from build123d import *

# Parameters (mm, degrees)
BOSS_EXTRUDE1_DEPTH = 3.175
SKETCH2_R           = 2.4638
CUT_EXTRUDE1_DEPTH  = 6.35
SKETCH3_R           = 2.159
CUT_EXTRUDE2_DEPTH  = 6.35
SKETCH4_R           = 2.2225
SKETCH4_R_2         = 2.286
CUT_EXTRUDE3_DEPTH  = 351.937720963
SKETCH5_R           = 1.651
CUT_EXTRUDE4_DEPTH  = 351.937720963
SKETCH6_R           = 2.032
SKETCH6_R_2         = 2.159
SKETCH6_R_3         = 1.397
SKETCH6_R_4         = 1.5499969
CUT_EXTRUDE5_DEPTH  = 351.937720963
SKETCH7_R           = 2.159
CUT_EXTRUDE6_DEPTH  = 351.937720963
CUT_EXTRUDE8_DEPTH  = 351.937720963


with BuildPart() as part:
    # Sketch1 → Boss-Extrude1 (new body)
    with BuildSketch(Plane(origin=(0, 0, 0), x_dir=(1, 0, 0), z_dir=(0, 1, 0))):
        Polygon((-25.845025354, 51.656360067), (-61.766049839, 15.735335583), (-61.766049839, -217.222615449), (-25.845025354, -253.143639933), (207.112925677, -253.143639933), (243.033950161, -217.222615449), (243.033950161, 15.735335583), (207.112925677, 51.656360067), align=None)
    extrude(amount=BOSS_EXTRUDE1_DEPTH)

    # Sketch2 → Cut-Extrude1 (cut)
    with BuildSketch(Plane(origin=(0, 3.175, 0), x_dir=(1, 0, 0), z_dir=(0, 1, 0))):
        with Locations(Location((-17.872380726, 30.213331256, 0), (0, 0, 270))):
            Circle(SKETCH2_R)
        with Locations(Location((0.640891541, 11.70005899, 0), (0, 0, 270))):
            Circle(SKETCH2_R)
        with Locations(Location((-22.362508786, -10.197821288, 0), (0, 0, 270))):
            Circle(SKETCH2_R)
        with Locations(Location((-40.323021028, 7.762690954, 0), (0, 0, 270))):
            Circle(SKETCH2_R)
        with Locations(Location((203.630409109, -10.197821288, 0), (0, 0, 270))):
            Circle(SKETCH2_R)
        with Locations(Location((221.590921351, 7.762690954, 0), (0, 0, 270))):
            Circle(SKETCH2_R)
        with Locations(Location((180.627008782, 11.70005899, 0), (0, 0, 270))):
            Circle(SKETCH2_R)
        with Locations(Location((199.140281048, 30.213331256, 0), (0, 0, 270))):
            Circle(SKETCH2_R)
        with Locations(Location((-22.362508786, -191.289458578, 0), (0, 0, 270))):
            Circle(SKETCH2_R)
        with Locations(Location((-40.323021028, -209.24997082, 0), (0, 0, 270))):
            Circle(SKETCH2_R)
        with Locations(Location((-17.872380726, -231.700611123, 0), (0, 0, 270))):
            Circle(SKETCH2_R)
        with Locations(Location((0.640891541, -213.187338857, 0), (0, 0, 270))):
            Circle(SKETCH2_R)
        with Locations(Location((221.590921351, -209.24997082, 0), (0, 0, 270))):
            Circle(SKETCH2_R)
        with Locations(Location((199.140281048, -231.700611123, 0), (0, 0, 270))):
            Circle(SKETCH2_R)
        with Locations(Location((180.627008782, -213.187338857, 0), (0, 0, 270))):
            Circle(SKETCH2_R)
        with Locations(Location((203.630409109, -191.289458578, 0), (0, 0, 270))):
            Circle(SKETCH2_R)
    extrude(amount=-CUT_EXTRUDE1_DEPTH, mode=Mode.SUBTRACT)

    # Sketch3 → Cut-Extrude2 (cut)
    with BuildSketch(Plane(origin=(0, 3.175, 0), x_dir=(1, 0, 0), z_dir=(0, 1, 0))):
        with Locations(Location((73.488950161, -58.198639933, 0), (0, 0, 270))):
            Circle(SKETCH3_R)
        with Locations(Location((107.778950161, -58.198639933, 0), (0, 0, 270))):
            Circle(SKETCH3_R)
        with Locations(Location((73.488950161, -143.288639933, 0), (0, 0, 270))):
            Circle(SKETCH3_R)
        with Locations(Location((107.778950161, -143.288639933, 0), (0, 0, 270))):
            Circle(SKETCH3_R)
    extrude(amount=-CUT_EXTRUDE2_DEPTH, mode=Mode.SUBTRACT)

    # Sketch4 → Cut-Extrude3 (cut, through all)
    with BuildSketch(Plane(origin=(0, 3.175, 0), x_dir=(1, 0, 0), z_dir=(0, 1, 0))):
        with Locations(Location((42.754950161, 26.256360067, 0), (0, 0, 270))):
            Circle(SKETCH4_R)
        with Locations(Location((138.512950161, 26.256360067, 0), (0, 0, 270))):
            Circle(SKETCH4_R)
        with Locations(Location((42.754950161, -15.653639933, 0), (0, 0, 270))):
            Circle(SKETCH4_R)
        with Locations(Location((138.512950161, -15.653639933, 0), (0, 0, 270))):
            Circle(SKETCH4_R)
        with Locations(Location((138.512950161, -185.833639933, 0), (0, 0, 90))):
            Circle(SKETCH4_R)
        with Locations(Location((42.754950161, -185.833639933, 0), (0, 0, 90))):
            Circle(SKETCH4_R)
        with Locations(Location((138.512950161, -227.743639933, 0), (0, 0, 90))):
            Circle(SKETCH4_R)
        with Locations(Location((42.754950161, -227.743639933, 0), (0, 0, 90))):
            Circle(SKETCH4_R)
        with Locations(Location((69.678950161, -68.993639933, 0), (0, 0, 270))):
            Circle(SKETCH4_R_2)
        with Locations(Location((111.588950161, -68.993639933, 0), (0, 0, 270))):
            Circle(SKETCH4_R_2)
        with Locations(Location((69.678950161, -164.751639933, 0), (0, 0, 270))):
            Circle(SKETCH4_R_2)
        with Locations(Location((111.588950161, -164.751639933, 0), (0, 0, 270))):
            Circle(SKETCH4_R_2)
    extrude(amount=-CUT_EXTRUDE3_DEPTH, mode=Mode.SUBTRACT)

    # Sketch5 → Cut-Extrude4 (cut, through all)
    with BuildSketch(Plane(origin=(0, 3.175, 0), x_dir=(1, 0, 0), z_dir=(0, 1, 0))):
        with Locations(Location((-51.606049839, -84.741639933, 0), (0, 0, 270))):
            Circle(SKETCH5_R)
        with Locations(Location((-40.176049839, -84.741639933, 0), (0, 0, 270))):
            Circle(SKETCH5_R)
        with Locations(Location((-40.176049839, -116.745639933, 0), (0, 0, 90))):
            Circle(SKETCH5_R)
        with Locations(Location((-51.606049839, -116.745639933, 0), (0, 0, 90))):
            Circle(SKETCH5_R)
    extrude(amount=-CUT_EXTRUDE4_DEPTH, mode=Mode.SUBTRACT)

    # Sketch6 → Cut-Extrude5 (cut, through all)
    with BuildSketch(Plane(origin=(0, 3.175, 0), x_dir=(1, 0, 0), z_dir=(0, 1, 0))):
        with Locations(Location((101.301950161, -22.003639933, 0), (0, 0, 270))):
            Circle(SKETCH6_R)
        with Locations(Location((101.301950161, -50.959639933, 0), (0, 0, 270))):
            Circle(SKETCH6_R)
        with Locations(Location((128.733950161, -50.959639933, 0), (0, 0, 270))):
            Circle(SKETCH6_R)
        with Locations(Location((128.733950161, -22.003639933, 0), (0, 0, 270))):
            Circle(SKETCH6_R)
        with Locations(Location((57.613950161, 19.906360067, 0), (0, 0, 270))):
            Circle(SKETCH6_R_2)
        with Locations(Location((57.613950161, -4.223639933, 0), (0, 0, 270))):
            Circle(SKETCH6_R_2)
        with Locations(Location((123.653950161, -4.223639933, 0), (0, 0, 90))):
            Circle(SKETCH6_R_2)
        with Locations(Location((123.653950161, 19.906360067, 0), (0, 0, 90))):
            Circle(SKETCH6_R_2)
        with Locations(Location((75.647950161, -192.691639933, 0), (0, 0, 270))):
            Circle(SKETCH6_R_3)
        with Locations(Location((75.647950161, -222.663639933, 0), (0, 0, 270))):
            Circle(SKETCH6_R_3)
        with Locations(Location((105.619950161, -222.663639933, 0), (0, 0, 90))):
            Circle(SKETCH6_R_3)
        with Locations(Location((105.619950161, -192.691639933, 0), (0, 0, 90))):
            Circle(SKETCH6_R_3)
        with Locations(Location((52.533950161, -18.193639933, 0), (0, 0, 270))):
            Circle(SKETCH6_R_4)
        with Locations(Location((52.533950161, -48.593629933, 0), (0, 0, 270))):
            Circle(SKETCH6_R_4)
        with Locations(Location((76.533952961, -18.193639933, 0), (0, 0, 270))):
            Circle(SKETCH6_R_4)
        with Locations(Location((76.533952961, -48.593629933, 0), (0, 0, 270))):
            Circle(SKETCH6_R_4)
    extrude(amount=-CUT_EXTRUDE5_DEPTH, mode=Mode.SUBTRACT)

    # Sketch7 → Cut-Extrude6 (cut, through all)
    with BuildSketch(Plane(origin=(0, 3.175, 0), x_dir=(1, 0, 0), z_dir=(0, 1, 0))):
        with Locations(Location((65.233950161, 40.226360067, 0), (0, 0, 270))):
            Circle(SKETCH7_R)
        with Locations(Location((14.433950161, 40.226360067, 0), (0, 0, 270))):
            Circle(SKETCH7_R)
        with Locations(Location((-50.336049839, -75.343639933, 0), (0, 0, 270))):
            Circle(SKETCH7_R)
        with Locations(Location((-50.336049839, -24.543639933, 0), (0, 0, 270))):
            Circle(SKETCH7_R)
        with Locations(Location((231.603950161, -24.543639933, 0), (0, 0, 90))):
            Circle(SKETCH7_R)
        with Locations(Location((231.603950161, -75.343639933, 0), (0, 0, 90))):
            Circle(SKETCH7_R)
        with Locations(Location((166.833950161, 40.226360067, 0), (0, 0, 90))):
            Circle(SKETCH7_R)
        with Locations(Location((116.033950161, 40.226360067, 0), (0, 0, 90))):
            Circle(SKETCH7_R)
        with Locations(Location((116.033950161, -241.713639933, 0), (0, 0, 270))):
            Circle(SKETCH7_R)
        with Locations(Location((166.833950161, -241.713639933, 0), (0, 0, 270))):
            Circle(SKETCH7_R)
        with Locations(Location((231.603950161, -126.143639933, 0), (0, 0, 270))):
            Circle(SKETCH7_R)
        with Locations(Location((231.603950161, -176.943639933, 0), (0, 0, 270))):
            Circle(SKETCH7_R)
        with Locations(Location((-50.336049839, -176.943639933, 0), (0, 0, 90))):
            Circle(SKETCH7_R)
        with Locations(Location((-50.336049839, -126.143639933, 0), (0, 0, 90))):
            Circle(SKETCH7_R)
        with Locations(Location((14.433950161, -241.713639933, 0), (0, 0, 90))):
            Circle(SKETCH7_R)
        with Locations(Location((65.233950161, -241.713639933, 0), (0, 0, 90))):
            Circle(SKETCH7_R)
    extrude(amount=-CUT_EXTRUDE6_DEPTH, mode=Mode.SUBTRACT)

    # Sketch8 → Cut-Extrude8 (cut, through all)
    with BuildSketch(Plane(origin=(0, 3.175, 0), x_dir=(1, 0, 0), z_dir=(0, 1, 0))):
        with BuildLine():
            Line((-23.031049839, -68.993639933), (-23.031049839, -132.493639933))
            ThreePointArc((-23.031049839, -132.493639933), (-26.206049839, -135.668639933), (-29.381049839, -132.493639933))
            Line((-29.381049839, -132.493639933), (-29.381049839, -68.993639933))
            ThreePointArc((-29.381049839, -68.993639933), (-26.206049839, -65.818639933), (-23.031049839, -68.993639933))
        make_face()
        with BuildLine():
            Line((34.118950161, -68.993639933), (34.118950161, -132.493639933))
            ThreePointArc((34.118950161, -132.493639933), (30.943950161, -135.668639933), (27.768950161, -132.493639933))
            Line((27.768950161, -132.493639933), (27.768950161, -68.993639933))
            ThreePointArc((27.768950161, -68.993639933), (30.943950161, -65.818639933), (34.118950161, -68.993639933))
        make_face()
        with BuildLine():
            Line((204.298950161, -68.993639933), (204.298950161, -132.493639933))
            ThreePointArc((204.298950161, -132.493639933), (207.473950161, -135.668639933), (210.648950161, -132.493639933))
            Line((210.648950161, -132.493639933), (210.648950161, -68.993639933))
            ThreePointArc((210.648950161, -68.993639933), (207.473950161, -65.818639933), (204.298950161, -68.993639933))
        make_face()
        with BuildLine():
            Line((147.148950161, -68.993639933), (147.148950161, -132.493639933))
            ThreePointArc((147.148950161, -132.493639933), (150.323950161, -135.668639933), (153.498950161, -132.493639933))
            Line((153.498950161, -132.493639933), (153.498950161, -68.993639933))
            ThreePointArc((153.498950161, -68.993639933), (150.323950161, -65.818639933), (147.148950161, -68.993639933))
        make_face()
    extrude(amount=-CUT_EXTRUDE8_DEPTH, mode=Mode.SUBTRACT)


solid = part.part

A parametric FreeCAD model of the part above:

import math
import FreeCAD as App
import Part
import Sketcher
from FreeCAD import Vector
Q = App.Units.Quantity


def add_polygon(sketch, points):
    """Adds a closed chain of lines whose ends are joined by coincident constraints."""
    first, n = sketch.GeometryCount, len(points)
    for a, b in zip(points, points[1:] + points[:1]):
        sketch.addGeometry(Part.LineSegment(App.Vector(*a, 0), App.Vector(*b, 0)), False)
    for i in range(n):
        sketch.addConstraint(Sketcher.Constraint("Coincident", first + i, 2, first + (i + 1) % n, 1))

doc = App.newDocument("Part")
body = doc.addObject("PartDesign::Body", "Body")

# Sketch on XZ plane
sketch1 = body.newObject("Sketcher::SketchObject", "Sketch")
sketch1.AttachmentSupport = (doc.getObject("XZ_Plane"), [""])
sketch1.MapMode = "FlatFace"
add_polygon(sketch1, [(-25.845025, -51.65636), (-61.76605, -15.735336), (-61.76605, 217.222615), (-25.845025, 253.14364), (207.112926, 253.14364), (243.03395, 217.222615), (243.03395, -15.735336), (207.112926, -51.65636)])  # lines 0-7
sketch1.addConstraint([
    Sketcher.Constraint("Vertical", 1),
    Sketcher.Constraint("Horizontal", 3),
    Sketcher.Constraint("Vertical", 5),
    Sketcher.Constraint("Horizontal", 7),
    Sketcher.Constraint("Perpendicular", 0, 2),
    Sketcher.Constraint("Perpendicular", 2, 4),
    Sketcher.Constraint("Perpendicular", 4, 6),
    Sketcher.Constraint("Horizontal", 1, 2, 4, 2),
    Sketcher.Constraint("Horizontal", 0, 2, 5, 2),
    Sketcher.Constraint("Vertical", 3, 2, 6, 2),
    Sketcher.Constraint("Vertical", 2, 2, 7, 2),
    Sketcher.Constraint("Equal", 7, 1),
    Sketcher.Constraint("Distance", 0, Q("2 in")),
    Sketcher.Constraint("DistanceX", 1, 2, 4, 2, Q("12 in")),
    Sketcher.Constraint("DistanceX", 0, 2, -1, 1, 61.76605),
    Sketcher.Constraint("DistanceY", -1, 1, 2, 2, 253.14364),
])
pad1 = body.newObject("PartDesign::Pad", "Pad")
pad1.Profile = sketch1
pad1.Length = Q("0.125 in")
pad1.Reversed = True

# Sketch on XZ plane
sketch2 = body.newObject("Sketcher::SketchObject", "Sketch001")
sketch2.AttachmentSupport = (doc.getObject("XZ_Plane"), [""])
sketch2.MapMode = "FlatFace"
sketch2.AttachmentOffset = App.Placement(Vector(0, 0, -0.125 * 25.4), App.Rotation())
sketch2.addGeometry([
    Part.Circle(Vector(-17.872381, -30.213331, 0), Vector(0, 0, 1), 2.4638),  # 0
    Part.Circle(Vector(0.640892, -11.700059, 0), Vector(0, 0, 1), 2.4638),  # 1
    Part.Circle(Vector(-22.362509, 10.197821, 0), Vector(0, 0, 1), 2.4638),  # 2
    Part.Circle(Vector(-40.323021, -7.762691, 0), Vector(0, 0, 1), 2.4638),  # 3
    Part.Circle(Vector(203.630409, 10.197821, 0), Vector(0, 0, 1), 2.4638),  # 4
    Part.Circle(Vector(221.590921, -7.762691, 0), Vector(0, 0, 1), 2.4638),  # 5
    Part.Circle(Vector(180.627009, -11.700059, 0), Vector(0, 0, 1), 2.4638),  # 6
    Part.Circle(Vector(199.140281, -30.213331, 0), Vector(0, 0, 1), 2.4638),  # 7
    Part.Circle(Vector(-22.362509, 191.289459, 0), Vector(0, 0, 1), 2.4638),  # 8
    Part.Circle(Vector(-40.323021, 209.249971, 0), Vector(0, 0, 1), 2.4638),  # 9
    Part.Circle(Vector(-17.872381, 231.700611, 0), Vector(0, 0, 1), 2.4638),  # 10
    Part.Circle(Vector(0.640892, 213.187339, 0), Vector(0, 0, 1), 2.4638),  # 11
    Part.Circle(Vector(221.590921, 209.249971, 0), Vector(0, 0, 1), 2.4638),  # 12
    Part.Circle(Vector(199.140281, 231.700611, 0), Vector(0, 0, 1), 2.4638),  # 13
    Part.Circle(Vector(180.627009, 213.187339, 0), Vector(0, 0, 1), 2.4638),  # 14
    Part.Circle(Vector(203.630409, 191.289459, 0), Vector(0, 0, 1), 2.4638),  # 15
], False)
sketch2.addConstraint([
    Sketcher.Constraint("Equal", 0, 1),
    Sketcher.Constraint("Equal", 1, 2),
    Sketcher.Constraint("Equal", 2, 3),
    Sketcher.Constraint("Equal", 3, 4),
    Sketcher.Constraint("Equal", 4, 5),
    Sketcher.Constraint("Equal", 5, 6),
    Sketcher.Constraint("Equal", 6, 7),
    Sketcher.Constraint("Equal", 7, 8),
    Sketcher.Constraint("Equal", 8, 9),
    Sketcher.Constraint("Equal", 9, 10),
    Sketcher.Constraint("Equal", 10, 11),
    Sketcher.Constraint("Equal", 11, 12),
    Sketcher.Constraint("Equal", 12, 13),
    Sketcher.Constraint("Equal", 13, 14),
    Sketcher.Constraint("Equal", 14, 15),
    Sketcher.Constraint("Horizontal", 2, 3, 4, 3),
    Sketcher.Constraint("Horizontal", 3, 3, 5, 3),
    Sketcher.Constraint("Horizontal", 1, 3, 6, 3),
    Sketcher.Constraint("Horizontal", 0, 3, 7, 3),
    Sketcher.Constraint("Horizontal", 9, 3, 12, 3),
    Sketcher.Constraint("Horizontal", 10, 3, 13, 3),
    Sketcher.Constraint("Horizontal", 11, 3, 14, 3),
    Sketcher.Constraint("Horizontal", 8, 3, 15, 3),
    Sketcher.Constraint("Vertical", 2, 3, 8, 3),
    Sketcher.Constraint("Vertical", 3, 3, 9, 3),
    Sketcher.Constraint("Vertical", 0, 3, 10, 3),
    Sketcher.Constraint("Vertical", 1, 3, 11, 3),
    Sketcher.Constraint("Vertical", 5, 3, 12, 3),
    Sketcher.Constraint("Vertical", 7, 3, 13, 3),
    Sketcher.Constraint("Vertical", 6, 3, 14, 3),
    Sketcher.Constraint("Vertical", 4, 3, 15, 3),
    Sketcher.Constraint("Diameter", 0, Q("0.194 in")),
    Sketcher.Constraint("DistanceX", 2, 3, 1, 3, 23.0034),
    Sketcher.Constraint("DistanceX", 6, 3, 4, 3, 23.0034),
    Sketcher.Constraint("DistanceX", 0, 3, -1, 1, 17.872381),
    Sketcher.Constraint("DistanceY", 0, 3, -1, 1, 30.213331),
    Sketcher.Constraint("DistanceX", -1, 1, 1, 3, 0.640892),
    Sketcher.Constraint("DistanceY", 1, 3, -1, 1, 11.700059),
    Sketcher.Constraint("DistanceY", -1, 1, 2, 3, 10.197821),
    Sketcher.Constraint("DistanceX", 3, 3, -1, 1, 40.323021),
    Sketcher.Constraint("DistanceY", 3, 3, -1, 1, 7.762691),
    Sketcher.Constraint("DistanceX", -1, 1, 4, 3, 203.630409),
    Sketcher.Constraint("DistanceX", -1, 1, 5, 3, 221.590921),
    Sketcher.Constraint("DistanceX", -1, 1, 7, 3, 199.140281),
    Sketcher.Constraint("DistanceY", -1, 1, 8, 3, 191.289459),
    Sketcher.Constraint("DistanceY", -1, 1, 9, 3, 209.249971),
    Sketcher.Constraint("DistanceY", -1, 1, 10, 3, 231.700611),
    Sketcher.Constraint("DistanceY", -1, 1, 11, 3, 213.187339),
])
pocket1 = body.newObject("PartDesign::Pocket", "Pocket")
pocket1.Profile = sketch2
pocket1.Length = Q("0.25 in")
pocket1.Reversed = True

# Sketch on XZ plane
sketch3 = body.newObject("Sketcher::SketchObject", "Sketch002")
sketch3.AttachmentSupport = (doc.getObject("XZ_Plane"), [""])
sketch3.MapMode = "FlatFace"
sketch3.AttachmentOffset = App.Placement(Vector(0, 0, -0.125 * 25.4), App.Rotation())
sketch3.addGeometry([
    Part.Circle(Vector(73.48895, 58.19864, 0), Vector(0, 0, 1), 2.159),
    Part.Circle(Vector(107.77895, 58.19864, 0), Vector(0, 0, 1), 2.159),
    Part.Circle(Vector(73.48895, 143.28864, 0), Vector(0, 0, 1), 2.159),
    Part.Circle(Vector(107.77895, 143.28864, 0), Vector(0, 0, 1), 2.159),
], False)
sketch3.addConstraint([
    Sketcher.Constraint("Equal", 0, 1),
    Sketcher.Constraint("Equal", 1, 2),
    Sketcher.Constraint("Equal", 2, 3),
    Sketcher.Constraint("Horizontal", 0, 3, 1, 3),
    Sketcher.Constraint("Horizontal", 2, 3, 3, 3),
    Sketcher.Constraint("Vertical", 0, 3, 2, 3),
    Sketcher.Constraint("Vertical", 1, 3, 3, 3),
    Sketcher.Constraint("Diameter", 0, Q("0.17 in")),
    Sketcher.Constraint("DistanceX", 0, 3, 1, 3, Q("1.35 in")),
    Sketcher.Constraint("DistanceY", 0, 3, 2, 3, Q("3.35 in")),
    Sketcher.Constraint("DistanceX", -1, 1, 0, 3, 73.48895),
    Sketcher.Constraint("DistanceY", -1, 1, 0, 3, 58.19864),
])
pocket2 = body.newObject("PartDesign::Pocket", "Pocket001")
pocket2.Profile = sketch3
pocket2.Length = Q("0.25 in")
pocket2.Reversed = True

# Sketch on XZ plane
sketch4 = body.newObject("Sketcher::SketchObject", "Sketch003")
sketch4.AttachmentSupport = (doc.getObject("XZ_Plane"), [""])
sketch4.MapMode = "FlatFace"
sketch4.AttachmentOffset = App.Placement(Vector(0, 0, -0.125 * 25.4), App.Rotation())
sketch4.addGeometry([
    Part.Circle(Vector(42.75495, -26.25636, 0), Vector(0, 0, 1), 2.2225),  # 0
    Part.Circle(Vector(138.51295, -26.25636, 0), Vector(0, 0, 1), 2.2225),  # 1
    Part.Circle(Vector(42.75495, 15.65364, 0), Vector(0, 0, 1), 2.2225),  # 2
    Part.Circle(Vector(138.51295, 15.65364, 0), Vector(0, 0, 1), 2.2225),  # 3
    Part.Circle(Vector(138.51295, 185.83364, 0), Vector(0, 0, 1), 2.2225),  # 4
    Part.Circle(Vector(42.75495, 185.83364, 0), Vector(0, 0, 1), 2.2225),  # 5
    Part.Circle(Vector(138.51295, 227.74364, 0), Vector(0, 0, 1), 2.2225),  # 6
    Part.Circle(Vector(42.75495, 227.74364, 0), Vector(0, 0, 1), 2.2225),  # 7
    Part.Circle(Vector(69.67895, 68.99364, 0), Vector(0, 0, 1), 2.286),  # 8
    Part.Circle(Vector(111.58895, 68.99364, 0), Vector(0, 0, 1), 2.286),  # 9
    Part.Circle(Vector(69.67895, 164.75164, 0), Vector(0, 0, 1), 2.286),  # 10
    Part.Circle(Vector(111.58895, 164.75164, 0), Vector(0, 0, 1), 2.286),  # 11
], False)
sketch4.addConstraint([
    Sketcher.Constraint("Equal", 0, 1),
    Sketcher.Constraint("Equal", 1, 2),
    Sketcher.Constraint("Equal", 2, 3),
    Sketcher.Constraint("Equal", 3, 4),
    Sketcher.Constraint("Equal", 4, 5),
    Sketcher.Constraint("Equal", 5, 6),
    Sketcher.Constraint("Equal", 6, 7),
    Sketcher.Constraint("Equal", 8, 9),
    Sketcher.Constraint("Equal", 9, 10),
    Sketcher.Constraint("Equal", 10, 11),
    Sketcher.Constraint("Horizontal", 0, 3, 1, 3),
    Sketcher.Constraint("Horizontal", 2, 3, 3, 3),
    Sketcher.Constraint("Horizontal", 4, 3, 5, 3),
    Sketcher.Constraint("Horizontal", 6, 3, 7, 3),
    Sketcher.Constraint("Horizontal", 8, 3, 9, 3),
    Sketcher.Constraint("Horizontal", 10, 3, 11, 3),
    Sketcher.Constraint("Vertical", 0, 3, 2, 3),
    Sketcher.Constraint("Vertical", 1, 3, 3, 3),
    Sketcher.Constraint("Vertical", 3, 3, 4, 3),
    Sketcher.Constraint("Vertical", 2, 3, 5, 3),
    Sketcher.Constraint("Vertical", 4, 3, 6, 3),
    Sketcher.Constraint("Vertical", 5, 3, 7, 3),
    Sketcher.Constraint("Vertical", 8, 3, 10, 3),
    Sketcher.Constraint("Vertical", 9, 3, 11, 3),
    Sketcher.Constraint("Diameter", 8, Q("0.18 in")),
    Sketcher.Constraint("Diameter", 0, Q("0.175 in")),
    Sketcher.Constraint("DistanceY", 1, 3, 6, 3, Q("10 in")),
    Sketcher.Constraint("DistanceY", 3, 3, 4, 3, Q("6.7 in")),
    Sketcher.Constraint("DistanceY", 2, 3, 8, 3, Q("2.1 in")),
    Sketcher.Constraint("DistanceX", 0, 3, 1, 3, Q("3.77 in")),
    Sketcher.Constraint("DistanceY", 0, 3, 2, 3, Q("1.65 in")),
    Sketcher.Constraint("DistanceX", 2, 3, 8, 3, Q("1.06 in")),
    Sketcher.Constraint("DistanceX", 8, 3, 9, 3, Q("1.65 in")),
    Sketcher.Constraint("DistanceY", 10, 3, 5, 3, Q("0.83 in")),
    Sketcher.Constraint("DistanceX", -1, 1, 0, 3, 42.75495),
    Sketcher.Constraint("DistanceY", 0, 3, -1, 1, 26.25636),
])
pocket3 = body.newObject("PartDesign::Pocket", "Pocket002")
pocket3.Profile = sketch4
pocket3.Type = "ThroughAll"
pocket3.Reversed = True

# Sketch on XZ plane
sketch5 = body.newObject("Sketcher::SketchObject", "Sketch004")
sketch5.AttachmentSupport = (doc.getObject("XZ_Plane"), [""])
sketch5.MapMode = "FlatFace"
sketch5.AttachmentOffset = App.Placement(Vector(0, 0, -0.125 * 25.4), App.Rotation())
sketch5.addGeometry([
    Part.Circle(Vector(-51.60605, 84.74164, 0), Vector(0, 0, 1), 1.651),
    Part.Circle(Vector(-40.17605, 84.74164, 0), Vector(0, 0, 1), 1.651),
    Part.Circle(Vector(-40.17605, 116.74564, 0), Vector(0, 0, 1), 1.651),
    Part.Circle(Vector(-51.60605, 116.74564, 0), Vector(0, 0, 1), 1.651),
], False)
sketch5.addConstraint([
    Sketcher.Constraint("Equal", 0, 1),
    Sketcher.Constraint("Equal", 1, 2),
    Sketcher.Constraint("Equal", 2, 3),
    Sketcher.Constraint("Horizontal", 0, 3, 1, 3),
    Sketcher.Constraint("Horizontal", 2, 3, 3, 3),
    Sketcher.Constraint("Vertical", 1, 3, 2, 3),
    Sketcher.Constraint("Vertical", 0, 3, 3, 3),
    Sketcher.Constraint("Diameter", 0, Q("0.13 in")),
    Sketcher.Constraint("DistanceX", 0, 3, 1, 3, Q("0.45 in")),
    Sketcher.Constraint("DistanceY", 1, 3, 2, 3, Q("1.26 in")),
    Sketcher.Constraint("DistanceX", 0, 3, -1, 1, 51.60605),
    Sketcher.Constraint("DistanceY", -1, 1, 0, 3, 84.74164),
])
pocket4 = body.newObject("PartDesign::Pocket", "Pocket003")
pocket4.Profile = sketch5
pocket4.Type = "ThroughAll"
pocket4.Reversed = True

# Sketch on XZ plane
sketch6 = body.newObject("Sketcher::SketchObject", "Sketch005")
sketch6.AttachmentSupport = (doc.getObject("XZ_Plane"), [""])
sketch6.MapMode = "FlatFace"
sketch6.AttachmentOffset = App.Placement(Vector(0, 0, -0.125 * 25.4), App.Rotation())
sketch6.addGeometry([
    Part.Circle(Vector(101.30195, 22.00364, 0), Vector(0, 0, 1), 2.032),  # 0
    Part.Circle(Vector(101.30195, 50.95964, 0), Vector(0, 0, 1), 2.032),  # 1
    Part.Circle(Vector(128.73395, 50.95964, 0), Vector(0, 0, 1), 2.032),  # 2
    Part.Circle(Vector(128.73395, 22.00364, 0), Vector(0, 0, 1), 2.032),  # 3
    Part.Circle(Vector(57.61395, -19.90636, 0), Vector(0, 0, 1), 2.159),  # 4
    Part.Circle(Vector(57.61395, 4.22364, 0), Vector(0, 0, 1), 2.159),  # 5
    Part.Circle(Vector(123.65395, 4.22364, 0), Vector(0, 0, 1), 2.159),  # 6
    Part.Circle(Vector(123.65395, -19.90636, 0), Vector(0, 0, 1), 2.159),  # 7
    Part.Circle(Vector(75.64795, 192.69164, 0), Vector(0, 0, 1), 1.397),  # 8
    Part.Circle(Vector(75.64795, 222.66364, 0), Vector(0, 0, 1), 1.397),  # 9
    Part.Circle(Vector(105.61995, 222.66364, 0), Vector(0, 0, 1), 1.397),  # 10
    Part.Circle(Vector(105.61995, 192.69164, 0), Vector(0, 0, 1), 1.397),  # 11
    Part.Circle(Vector(52.53395, 18.19364, 0), Vector(0, 0, 1), 1.549997),  # 12
    Part.Circle(Vector(52.53395, 48.59363, 0), Vector(0, 0, 1), 1.549997),  # 13
    Part.Circle(Vector(76.533953, 18.19364, 0), Vector(0, 0, 1), 1.549997),  # 14
    Part.Circle(Vector(76.533953, 48.59363, 0), Vector(0, 0, 1), 1.549997),  # 15
], False)
sketch6.addConstraint([
    Sketcher.Constraint("Equal", 0, 1),
    Sketcher.Constraint("Equal", 1, 2),
    Sketcher.Constraint("Equal", 2, 3),
    Sketcher.Constraint("Equal", 4, 5),
    Sketcher.Constraint("Equal", 5, 6),
    Sketcher.Constraint("Equal", 6, 7),
    Sketcher.Constraint("Equal", 8, 9),
    Sketcher.Constraint("Equal", 9, 10),
    Sketcher.Constraint("Equal", 10, 11),
    Sketcher.Constraint("Equal", 12, 13),
    Sketcher.Constraint("Equal", 13, 14),
    Sketcher.Constraint("Equal", 14, 15),
    Sketcher.Constraint("Horizontal", 1, 3, 2, 3),
    Sketcher.Constraint("Horizontal", 0, 3, 3, 3),
    Sketcher.Constraint("Horizontal", 5, 3, 6, 3),
    Sketcher.Constraint("Horizontal", 4, 3, 7, 3),
    Sketcher.Constraint("Horizontal", 9, 3, 10, 3),
    Sketcher.Constraint("Horizontal", 8, 3, 11, 3),
    Sketcher.Constraint("Horizontal", 12, 3, 14, 3),
    Sketcher.Constraint("Horizontal", 13, 3, 15, 3),
    Sketcher.Constraint("Vertical", 0, 3, 1, 3),
    Sketcher.Constraint("Vertical", 2, 3, 3, 3),
    Sketcher.Constraint("Vertical", 4, 3, 5, 3),
    Sketcher.Constraint("Vertical", 6, 3, 7, 3),
    Sketcher.Constraint("Vertical", 8, 3, 9, 3),
    Sketcher.Constraint("Vertical", 10, 3, 11, 3),
    Sketcher.Constraint("Vertical", 12, 3, 13, 3),
    Sketcher.Constraint("Vertical", 14, 3, 15, 3),
    Sketcher.Constraint("Diameter", 0, Q("0.16 in")),
    Sketcher.Constraint("Diameter", 4, Q("0.17 in")),
    Sketcher.Constraint("Diameter", 8, Q("0.11 in")),
    Sketcher.Constraint("DistanceX", 4, 3, 3, 3, Q("2.8 in")),
    Sketcher.Constraint("DistanceY", 5, 3, 0, 3, Q("0.7 in")),
    Sketcher.Constraint("DistanceX", 6, 3, 3, 3, Q("0.2 in")),
    Sketcher.Constraint("DistanceY", 0, 3, 9, 3, Q("7.9 in")),
    Sketcher.Constraint("DistanceX", 12, 3, 5, 3, Q("0.2 in")),
    Sketcher.Constraint("DistanceY", 4, 3, 12, 3, Q("1.5 in")),
    Sketcher.Constraint("DistanceY", 0, 3, 1, 3, Q("1.14 in")),
    Sketcher.Constraint("DistanceX", 1, 3, 2, 3, Q("1.08 in")),
    Sketcher.Constraint("DistanceY", 4, 3, 0, 3, Q("1.65 in")),
    Sketcher.Constraint("DistanceX", 8, 3, 1, 3, Q("1.01 in")),
    Sketcher.Constraint("DistanceY", 1, 3, 8, 3, Q("5.58 in")),
    Sketcher.Constraint("DistanceX", 9, 3, 10, 3, Q("1.18 in")),
    Sketcher.Constraint("Diameter", 12, 3.099994),
    Sketcher.Constraint("DistanceX", -1, 1, 0, 3, 101.30195),
    Sketcher.Constraint("DistanceY", -1, 1, 0, 3, 22.00364),
    Sketcher.Constraint("DistanceY", -1, 1, 13, 3, 48.59363),
    Sketcher.Constraint("DistanceX", -1, 1, 14, 3, 76.533953),
])
pocket5 = body.newObject("PartDesign::Pocket", "Pocket004")
pocket5.Profile = sketch6
pocket5.Type = "ThroughAll"
pocket5.Reversed = True

# Sketch on XZ plane
sketch7 = body.newObject("Sketcher::SketchObject", "Sketch006")
sketch7.AttachmentSupport = (doc.getObject("XZ_Plane"), [""])
sketch7.MapMode = "FlatFace"
sketch7.AttachmentOffset = App.Placement(Vector(0, 0, -0.125 * 25.4), App.Rotation())
sketch7.addGeometry([
    Part.Circle(Vector(65.23395, -40.22636, 0), Vector(0, 0, 1), 2.159),  # 0
    Part.Circle(Vector(14.43395, -40.22636, 0), Vector(0, 0, 1), 2.159),  # 1
    Part.Circle(Vector(-50.33605, 75.34364, 0), Vector(0, 0, 1), 2.159),  # 2
    Part.Circle(Vector(-50.33605, 24.54364, 0), Vector(0, 0, 1), 2.159),  # 3
    Part.Circle(Vector(231.60395, 24.54364, 0), Vector(0, 0, 1), 2.159),  # 4
    Part.Circle(Vector(231.60395, 75.34364, 0), Vector(0, 0, 1), 2.159),  # 5
    Part.Circle(Vector(166.83395, -40.22636, 0), Vector(0, 0, 1), 2.159),  # 6
    Part.Circle(Vector(116.03395, -40.22636, 0), Vector(0, 0, 1), 2.159),  # 7
    Part.Circle(Vector(116.03395, 241.71364, 0), Vector(0, 0, 1), 2.159),  # 8
    Part.Circle(Vector(166.83395, 241.71364, 0), Vector(0, 0, 1), 2.159),  # 9
    Part.Circle(Vector(231.60395, 126.14364, 0), Vector(0, 0, 1), 2.159),  # 10
    Part.Circle(Vector(231.60395, 176.94364, 0), Vector(0, 0, 1), 2.159),  # 11
    Part.Circle(Vector(-50.33605, 176.94364, 0), Vector(0, 0, 1), 2.159),  # 12
    Part.Circle(Vector(-50.33605, 126.14364, 0), Vector(0, 0, 1), 2.159),  # 13
    Part.Circle(Vector(14.43395, 241.71364, 0), Vector(0, 0, 1), 2.159),  # 14
    Part.Circle(Vector(65.23395, 241.71364, 0), Vector(0, 0, 1), 2.159),  # 15
], False)
sketch7.addConstraint([
    Sketcher.Constraint("Equal", 0, 1),
    Sketcher.Constraint("Equal", 1, 2),
    Sketcher.Constraint("Equal", 2, 3),
    Sketcher.Constraint("Equal", 3, 4),
    Sketcher.Constraint("Equal", 4, 5),
    Sketcher.Constraint("Equal", 5, 6),
    Sketcher.Constraint("Equal", 6, 7),
    Sketcher.Constraint("Equal", 7, 8),
    Sketcher.Constraint("Equal", 8, 9),
    Sketcher.Constraint("Equal", 9, 10),
    Sketcher.Constraint("Equal", 10, 11),
    Sketcher.Constraint("Equal", 11, 12),
    Sketcher.Constraint("Equal", 12, 13),
    Sketcher.Constraint("Equal", 13, 14),
    Sketcher.Constraint("Equal", 14, 15),
    Sketcher.Constraint("Horizontal", 0, 3, 1, 3),
    Sketcher.Constraint("Horizontal", 3, 3, 4, 3),
    Sketcher.Constraint("Horizontal", 2, 3, 5, 3),
    Sketcher.Constraint("Horizontal", 1, 3, 6, 3),
    Sketcher.Constraint("Horizontal", 6, 3, 7, 3),
    Sketcher.Constraint("Horizontal", 8, 3, 9, 3),
    Sketcher.Constraint("Horizontal", 11, 3, 12, 3),
    Sketcher.Constraint("Horizontal", 10, 3, 13, 3),
    Sketcher.Constraint("Horizontal", 9, 3, 14, 3),
    Sketcher.Constraint("Horizontal", 14, 3, 15, 3),
    Sketcher.Constraint("Vertical", 2, 3, 3, 3),
    Sketcher.Constraint("Vertical", 4, 3, 5, 3),
    Sketcher.Constraint("Vertical", 7, 3, 8, 3),
    Sketcher.Constraint("Vertical", 6, 3, 9, 3),
    Sketcher.Constraint("Vertical", 5, 3, 10, 3),
    Sketcher.Constraint("Vertical", 10, 3, 11, 3),
    Sketcher.Constraint("Vertical", 3, 3, 12, 3),
    Sketcher.Constraint("Vertical", 12, 3, 13, 3),
    Sketcher.Constraint("Vertical", 1, 3, 14, 3),
    Sketcher.Constraint("Vertical", 0, 3, 15, 3),
    Sketcher.Constraint("Diameter", 0, Q("0.17 in")),
    Sketcher.Constraint("DistanceX", 1, 3, 0, 3, Q("2 in")),
    Sketcher.Constraint("DistanceY", 3, 3, 2, 3, Q("2 in")),
    Sketcher.Constraint("DistanceX", 0, 3, 6, 3, Q("4 in")),
    Sketcher.Constraint("DistanceX", 7, 3, 6, 3, Q("2 in")),
    Sketcher.Constraint("DistanceY", 5, 3, 10, 3, Q("2 in")),
    Sketcher.Constraint("DistanceY", 10, 3, 11, 3, Q("2 in")),
    Sketcher.Constraint("DistanceX", 3, 3, 4, 3, Q("11.1 in")),
    Sketcher.Constraint("DistanceY", 7, 3, 8, 3, Q("11.1 in")),
    Sketcher.Constraint("DistanceX", 2, 3, 1, 3, Q("2.55 in")),
    Sketcher.Constraint("DistanceY", 1, 3, 2, 3, Q("4.55 in")),
    Sketcher.Constraint("DistanceX", -1, 1, 0, 3, 65.23395),
    Sketcher.Constraint("DistanceY", 0, 3, -1, 1, 40.22636),
])
pocket6 = body.newObject("PartDesign::Pocket", "Pocket005")
pocket6.Profile = sketch7
pocket6.Type = "ThroughAll"
pocket6.Reversed = True

# Sketch on XZ plane
sketch8 = body.newObject("Sketcher::SketchObject", "Sketch007")
sketch8.AttachmentSupport = (doc.getObject("XZ_Plane"), [""])
sketch8.MapMode = "FlatFace"
sketch8.AttachmentOffset = App.Placement(Vector(0, 0, -0.125 * 25.4), App.Rotation())
sketch8.addGeometry([
    Part.LineSegment(Vector(-23.03105, 132.49364, 0), Vector(-23.03105, 68.99364, 0)),  # 0
    Part.ArcOfCircle(Part.Circle(Vector(-26.20605, 68.99364, 0), Vector(0, 0, 1), 3.175), math.radians(180), math.radians(360)),  # 1
    Part.LineSegment(Vector(-29.38105, 68.99364, 0), Vector(-29.38105, 132.49364, 0)),  # 2
    Part.ArcOfCircle(Part.Circle(Vector(-26.20605, 132.49364, 0), Vector(0, 0, 1), 3.175), math.radians(0), math.radians(180)),  # 3
    Part.LineSegment(Vector(34.11895, 132.49364, 0), Vector(34.11895, 68.99364, 0)),  # 4
    Part.ArcOfCircle(Part.Circle(Vector(30.94395, 68.99364, 0), Vector(0, 0, 1), 3.175), math.radians(180), math.radians(360)),  # 5
    Part.LineSegment(Vector(27.76895, 68.99364, 0), Vector(27.76895, 132.49364, 0)),  # 6
    Part.ArcOfCircle(Part.Circle(Vector(30.94395, 132.49364, 0), Vector(0, 0, 1), 3.175), math.radians(0), math.radians(180)),  # 7
    Part.LineSegment(Vector(204.29895, 68.99364, 0), Vector(204.29895, 132.49364, 0)),  # 8
    Part.ArcOfCircle(Part.Circle(Vector(207.47395, 132.49364, 0), Vector(0, 0, 1), 3.175), math.radians(0), math.radians(180)),  # 9
    Part.LineSegment(Vector(210.64895, 132.49364, 0), Vector(210.64895, 68.99364, 0)),  # 10
    Part.ArcOfCircle(Part.Circle(Vector(207.47395, 68.99364, 0), Vector(0, 0, 1), 3.175), math.radians(180), math.radians(360)),  # 11
    Part.LineSegment(Vector(147.14895, 68.99364, 0), Vector(147.14895, 132.49364, 0)),  # 12
    Part.ArcOfCircle(Part.Circle(Vector(150.32395, 132.49364, 0), Vector(0, 0, 1), 3.175), math.radians(0), math.radians(180)),  # 13
    Part.LineSegment(Vector(153.49895, 132.49364, 0), Vector(153.49895, 68.99364, 0)),  # 14
    Part.ArcOfCircle(Part.Circle(Vector(150.32395, 68.99364, 0), Vector(0, 0, 1), 3.175), math.radians(180), math.radians(360)),  # 15
], False)
sketch8.addConstraint([
    Sketcher.Constraint("Tangent", 0, 2, 1, 2),
    Sketcher.Constraint("Tangent", 1, 1, 2, 1),
    Sketcher.Constraint("Tangent", 2, 2, 3, 2),
    Sketcher.Constraint("Tangent", 3, 1, 0, 1),
    Sketcher.Constraint("Tangent", 4, 2, 5, 2),
    Sketcher.Constraint("Tangent", 5, 1, 6, 1),
    Sketcher.Constraint("Tangent", 6, 2, 7, 2),
    Sketcher.Constraint("Tangent", 7, 1, 4, 1),
    Sketcher.Constraint("Tangent", 8, 2, 9, 2),
    Sketcher.Constraint("Tangent", 9, 1, 10, 1),
    Sketcher.Constraint("Tangent", 10, 2, 11, 2),
    Sketcher.Constraint("Tangent", 11, 1, 8, 1),
    Sketcher.Constraint("Tangent", 12, 2, 13, 2),
    Sketcher.Constraint("Tangent", 13, 1, 14, 1),
    Sketcher.Constraint("Tangent", 14, 2, 15, 2),
    Sketcher.Constraint("Tangent", 15, 1, 12, 1),
    Sketcher.Constraint("Vertical", 0),
    Sketcher.Constraint("Vertical", 2),
    Sketcher.Constraint("Vertical", 4),
    Sketcher.Constraint("Vertical", 6),
    Sketcher.Constraint("Vertical", 8),
    Sketcher.Constraint("Vertical", 10),
    Sketcher.Constraint("Vertical", 12),
    Sketcher.Constraint("Vertical", 14),
    Sketcher.Constraint("Equal", 3, 5),
    Sketcher.Constraint("Equal", 7, 9),
    Sketcher.Constraint("Equal", 11, 13),
    Sketcher.Constraint("Horizontal", 1, 3, 5, 3),
    Sketcher.Constraint("Horizontal", 3, 3, 7, 3),
    Sketcher.Constraint("Horizontal", 7, 3, 9, 3),
    Sketcher.Constraint("Horizontal", 5, 3, 11, 3),
    Sketcher.Constraint("Horizontal", 9, 3, 13, 3),
    Sketcher.Constraint("Horizontal", 11, 3, 15, 3),
    Sketcher.Constraint("DistanceY", 0, 2, 0, 1, Q("2.5 in")),
    Sketcher.Constraint("Radius", 1, Q("0.125 in")),
    Sketcher.Constraint("DistanceX", 0, 2, 5, 1, Q("2 in")),
    Sketcher.Constraint("DistanceX", 13, 1, 8, 2, Q("2 in")),
    Sketcher.Constraint("DistanceX", 3, 3, 9, 3, Q("9.2 in")),
    Sketcher.Constraint("DistanceX", 1, 3, -1, 1, 26.20605),
    Sketcher.Constraint("DistanceY", -1, 1, 1, 3, 68.99364),
])
pocket7 = body.newObject("PartDesign::Pocket", "Pocket006")
pocket7.Profile = sketch8
pocket7.Type = "ThroughAll"
pocket7.Reversed = True

doc.recompute()
